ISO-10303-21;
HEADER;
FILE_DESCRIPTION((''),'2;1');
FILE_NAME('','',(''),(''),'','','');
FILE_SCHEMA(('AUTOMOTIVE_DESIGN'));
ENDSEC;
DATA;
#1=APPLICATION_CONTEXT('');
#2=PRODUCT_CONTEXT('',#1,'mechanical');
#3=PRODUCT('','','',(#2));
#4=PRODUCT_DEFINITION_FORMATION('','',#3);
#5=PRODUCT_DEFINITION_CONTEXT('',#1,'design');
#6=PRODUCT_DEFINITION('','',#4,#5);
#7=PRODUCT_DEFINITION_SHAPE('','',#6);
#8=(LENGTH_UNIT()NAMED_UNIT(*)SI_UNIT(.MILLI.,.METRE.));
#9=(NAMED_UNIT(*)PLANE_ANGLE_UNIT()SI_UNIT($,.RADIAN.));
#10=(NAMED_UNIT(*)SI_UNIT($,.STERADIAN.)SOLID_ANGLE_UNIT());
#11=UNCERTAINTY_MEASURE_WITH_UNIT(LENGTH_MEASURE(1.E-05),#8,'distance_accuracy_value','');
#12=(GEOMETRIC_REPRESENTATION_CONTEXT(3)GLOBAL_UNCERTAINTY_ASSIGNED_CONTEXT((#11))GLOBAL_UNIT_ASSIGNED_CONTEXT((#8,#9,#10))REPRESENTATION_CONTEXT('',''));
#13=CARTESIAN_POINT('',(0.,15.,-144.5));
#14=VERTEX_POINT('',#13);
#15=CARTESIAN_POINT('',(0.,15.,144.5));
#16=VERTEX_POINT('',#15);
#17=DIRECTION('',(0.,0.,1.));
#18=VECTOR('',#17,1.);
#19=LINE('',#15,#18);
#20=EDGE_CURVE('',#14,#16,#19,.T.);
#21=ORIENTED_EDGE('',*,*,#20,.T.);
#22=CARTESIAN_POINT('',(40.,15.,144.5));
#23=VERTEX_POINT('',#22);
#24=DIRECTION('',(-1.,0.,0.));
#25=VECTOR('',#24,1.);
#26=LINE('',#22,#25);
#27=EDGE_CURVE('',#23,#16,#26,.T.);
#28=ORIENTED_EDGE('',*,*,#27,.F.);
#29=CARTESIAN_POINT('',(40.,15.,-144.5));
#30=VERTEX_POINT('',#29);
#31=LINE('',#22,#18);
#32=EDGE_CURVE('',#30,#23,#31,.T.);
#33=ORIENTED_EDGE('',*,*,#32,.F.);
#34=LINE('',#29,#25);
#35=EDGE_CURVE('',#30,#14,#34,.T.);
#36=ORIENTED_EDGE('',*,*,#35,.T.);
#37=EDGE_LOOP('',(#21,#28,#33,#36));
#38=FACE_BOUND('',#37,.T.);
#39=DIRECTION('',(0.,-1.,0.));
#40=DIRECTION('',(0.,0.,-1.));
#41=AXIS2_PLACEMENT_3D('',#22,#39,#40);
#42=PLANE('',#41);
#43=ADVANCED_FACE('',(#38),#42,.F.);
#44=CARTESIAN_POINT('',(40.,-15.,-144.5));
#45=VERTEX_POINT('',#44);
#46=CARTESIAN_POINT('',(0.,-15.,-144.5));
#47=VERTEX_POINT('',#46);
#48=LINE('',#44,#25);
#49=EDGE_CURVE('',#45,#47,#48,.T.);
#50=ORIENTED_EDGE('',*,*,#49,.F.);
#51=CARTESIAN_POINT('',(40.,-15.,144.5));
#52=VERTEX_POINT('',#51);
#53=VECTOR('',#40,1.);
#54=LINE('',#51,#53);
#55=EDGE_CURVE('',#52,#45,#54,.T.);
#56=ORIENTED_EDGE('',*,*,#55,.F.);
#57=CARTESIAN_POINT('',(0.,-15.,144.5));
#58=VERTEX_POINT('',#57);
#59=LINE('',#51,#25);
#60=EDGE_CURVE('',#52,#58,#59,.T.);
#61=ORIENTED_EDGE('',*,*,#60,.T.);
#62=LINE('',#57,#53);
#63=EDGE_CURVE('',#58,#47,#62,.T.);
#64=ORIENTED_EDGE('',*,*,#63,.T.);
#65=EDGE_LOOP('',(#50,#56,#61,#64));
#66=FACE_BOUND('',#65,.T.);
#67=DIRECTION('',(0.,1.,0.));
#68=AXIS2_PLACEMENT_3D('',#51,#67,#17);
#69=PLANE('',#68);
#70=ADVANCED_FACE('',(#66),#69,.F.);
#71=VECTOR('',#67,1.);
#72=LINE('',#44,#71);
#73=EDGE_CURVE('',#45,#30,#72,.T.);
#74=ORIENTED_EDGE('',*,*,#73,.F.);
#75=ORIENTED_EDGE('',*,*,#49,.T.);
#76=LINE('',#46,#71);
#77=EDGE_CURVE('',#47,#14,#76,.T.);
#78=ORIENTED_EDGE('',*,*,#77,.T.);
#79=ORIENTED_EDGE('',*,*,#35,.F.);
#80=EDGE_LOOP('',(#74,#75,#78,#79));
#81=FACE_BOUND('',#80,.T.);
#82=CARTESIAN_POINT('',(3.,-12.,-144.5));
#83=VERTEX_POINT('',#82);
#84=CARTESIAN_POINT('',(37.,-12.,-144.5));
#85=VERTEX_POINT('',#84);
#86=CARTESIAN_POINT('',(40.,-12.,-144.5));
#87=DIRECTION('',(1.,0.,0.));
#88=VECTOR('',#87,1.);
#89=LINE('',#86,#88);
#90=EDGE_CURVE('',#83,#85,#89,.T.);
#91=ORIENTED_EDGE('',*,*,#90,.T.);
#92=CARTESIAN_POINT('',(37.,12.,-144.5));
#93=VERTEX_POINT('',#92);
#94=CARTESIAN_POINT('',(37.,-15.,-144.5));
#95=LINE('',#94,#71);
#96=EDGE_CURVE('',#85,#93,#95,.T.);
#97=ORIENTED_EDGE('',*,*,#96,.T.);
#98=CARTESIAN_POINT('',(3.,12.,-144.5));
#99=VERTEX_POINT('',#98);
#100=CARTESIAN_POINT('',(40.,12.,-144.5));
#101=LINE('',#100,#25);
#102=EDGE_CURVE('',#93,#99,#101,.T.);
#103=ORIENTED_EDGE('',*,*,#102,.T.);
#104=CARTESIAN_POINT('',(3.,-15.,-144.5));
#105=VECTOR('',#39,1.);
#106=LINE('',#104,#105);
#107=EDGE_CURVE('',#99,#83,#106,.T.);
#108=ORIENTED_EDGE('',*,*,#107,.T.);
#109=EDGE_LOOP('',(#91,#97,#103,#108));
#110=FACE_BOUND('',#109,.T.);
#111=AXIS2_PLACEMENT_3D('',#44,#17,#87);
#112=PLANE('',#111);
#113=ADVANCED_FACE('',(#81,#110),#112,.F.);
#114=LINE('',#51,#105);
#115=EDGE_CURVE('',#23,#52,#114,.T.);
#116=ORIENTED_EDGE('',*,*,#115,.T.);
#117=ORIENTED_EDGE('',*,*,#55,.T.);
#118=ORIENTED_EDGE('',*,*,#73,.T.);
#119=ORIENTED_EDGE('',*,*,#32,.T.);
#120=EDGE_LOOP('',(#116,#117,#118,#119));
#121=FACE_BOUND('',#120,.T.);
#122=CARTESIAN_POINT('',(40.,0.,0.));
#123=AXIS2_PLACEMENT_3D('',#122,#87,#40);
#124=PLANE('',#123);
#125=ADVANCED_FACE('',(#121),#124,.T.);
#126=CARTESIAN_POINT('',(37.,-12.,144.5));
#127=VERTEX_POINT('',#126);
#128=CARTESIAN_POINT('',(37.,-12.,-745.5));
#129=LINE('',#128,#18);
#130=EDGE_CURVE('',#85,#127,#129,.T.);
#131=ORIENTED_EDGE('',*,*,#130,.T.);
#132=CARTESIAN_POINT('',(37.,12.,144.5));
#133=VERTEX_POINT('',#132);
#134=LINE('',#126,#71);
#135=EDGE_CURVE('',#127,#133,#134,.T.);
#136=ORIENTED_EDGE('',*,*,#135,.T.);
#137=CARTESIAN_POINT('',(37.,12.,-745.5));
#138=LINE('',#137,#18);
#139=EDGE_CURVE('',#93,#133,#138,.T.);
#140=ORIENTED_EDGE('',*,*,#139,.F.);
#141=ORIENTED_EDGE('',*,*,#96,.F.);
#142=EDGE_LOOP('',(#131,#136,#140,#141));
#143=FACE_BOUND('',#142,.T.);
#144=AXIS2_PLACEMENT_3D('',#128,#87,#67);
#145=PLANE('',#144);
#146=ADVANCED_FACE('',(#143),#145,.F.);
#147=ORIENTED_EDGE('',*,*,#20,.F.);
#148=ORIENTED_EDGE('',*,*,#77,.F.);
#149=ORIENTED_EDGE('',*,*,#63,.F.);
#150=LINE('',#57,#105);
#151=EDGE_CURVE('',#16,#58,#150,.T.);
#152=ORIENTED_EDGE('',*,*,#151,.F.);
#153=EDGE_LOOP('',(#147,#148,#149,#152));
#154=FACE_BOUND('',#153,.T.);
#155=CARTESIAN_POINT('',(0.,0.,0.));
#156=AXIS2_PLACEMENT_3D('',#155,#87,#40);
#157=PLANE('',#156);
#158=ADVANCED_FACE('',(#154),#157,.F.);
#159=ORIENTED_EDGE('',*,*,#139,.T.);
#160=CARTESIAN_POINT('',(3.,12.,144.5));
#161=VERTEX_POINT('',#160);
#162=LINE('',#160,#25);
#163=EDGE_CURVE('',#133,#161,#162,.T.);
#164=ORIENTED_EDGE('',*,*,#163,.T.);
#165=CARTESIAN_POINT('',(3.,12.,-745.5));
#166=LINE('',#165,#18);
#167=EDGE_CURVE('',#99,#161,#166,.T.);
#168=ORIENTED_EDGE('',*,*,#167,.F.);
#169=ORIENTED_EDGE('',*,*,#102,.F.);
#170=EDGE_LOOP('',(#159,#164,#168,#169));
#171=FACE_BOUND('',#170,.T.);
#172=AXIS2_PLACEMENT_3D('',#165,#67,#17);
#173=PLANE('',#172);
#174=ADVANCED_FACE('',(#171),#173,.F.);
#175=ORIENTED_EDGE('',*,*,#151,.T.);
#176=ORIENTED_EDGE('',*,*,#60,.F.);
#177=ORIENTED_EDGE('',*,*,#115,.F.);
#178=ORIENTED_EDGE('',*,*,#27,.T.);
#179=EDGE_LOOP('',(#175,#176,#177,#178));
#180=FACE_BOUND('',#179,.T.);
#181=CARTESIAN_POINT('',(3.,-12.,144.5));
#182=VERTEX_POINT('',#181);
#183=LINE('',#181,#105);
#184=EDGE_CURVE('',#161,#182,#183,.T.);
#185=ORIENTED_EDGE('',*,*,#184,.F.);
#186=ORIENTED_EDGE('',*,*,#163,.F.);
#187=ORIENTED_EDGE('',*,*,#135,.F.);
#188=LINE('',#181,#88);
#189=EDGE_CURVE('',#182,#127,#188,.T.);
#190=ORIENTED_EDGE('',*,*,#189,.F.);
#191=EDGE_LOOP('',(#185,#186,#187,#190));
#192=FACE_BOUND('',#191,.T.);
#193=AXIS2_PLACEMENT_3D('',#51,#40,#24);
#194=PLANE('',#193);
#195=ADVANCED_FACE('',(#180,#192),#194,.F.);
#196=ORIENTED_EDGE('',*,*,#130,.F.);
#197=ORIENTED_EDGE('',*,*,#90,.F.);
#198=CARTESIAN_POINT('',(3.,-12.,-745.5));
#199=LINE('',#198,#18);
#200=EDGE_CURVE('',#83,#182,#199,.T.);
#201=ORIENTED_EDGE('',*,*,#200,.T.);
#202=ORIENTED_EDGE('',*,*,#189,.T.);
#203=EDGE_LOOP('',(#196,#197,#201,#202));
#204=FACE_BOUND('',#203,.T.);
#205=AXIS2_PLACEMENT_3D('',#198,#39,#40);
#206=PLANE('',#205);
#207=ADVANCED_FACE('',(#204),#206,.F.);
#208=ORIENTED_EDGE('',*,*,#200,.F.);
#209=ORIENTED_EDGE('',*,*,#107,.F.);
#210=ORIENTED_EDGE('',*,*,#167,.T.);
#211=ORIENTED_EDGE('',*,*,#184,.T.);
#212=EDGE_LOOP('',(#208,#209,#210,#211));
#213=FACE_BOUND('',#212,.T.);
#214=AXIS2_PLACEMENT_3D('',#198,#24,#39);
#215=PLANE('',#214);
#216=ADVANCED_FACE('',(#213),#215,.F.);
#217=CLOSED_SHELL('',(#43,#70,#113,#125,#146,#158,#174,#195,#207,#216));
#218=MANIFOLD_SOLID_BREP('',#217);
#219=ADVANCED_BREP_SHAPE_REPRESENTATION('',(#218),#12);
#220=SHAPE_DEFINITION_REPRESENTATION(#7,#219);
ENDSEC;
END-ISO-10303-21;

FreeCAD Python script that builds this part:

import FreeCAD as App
import Part
import Sketcher
Q = App.Units.Quantity

doc = App.newDocument("Part")
params = doc.addObject("Spreadsheet::Sheet", "Params")
for row, (alias, value) in enumerate([
    ("sketch1_width", "30 mm"),
    ("sketch1_height", "289 mm"),
    ("pad1_length", "40 mm"),
    ("sketch2_width", "34 mm"),
    ("sketch2_height", "24 mm"),
    ("pocket1_length", "890 mm"),
], start=1):
    params.set(f"A{row}", alias)
    params.set(f"B{row}", "=" + value)
    params.setAlias(f"B{row}", alias)

body = doc.addObject("PartDesign::Body", "Body")

sketch1 = doc.addObject("Sketcher::SketchObject", "Sketch")
body.addObject(sketch1)
sketch1.AttachmentSupport = (doc.YZ_Plane, [""])
sketch1.MapMode = "FlatFace"
sketch1.addGeometry(Part.LineSegment(App.Vector(15, 144, 0), App.Vector(-15, 144, 0)), False)
sketch1.addGeometry(Part.LineSegment(App.Vector(-15, 144, 0), App.Vector(-15, -144, 0)), False)
sketch1.addGeometry(Part.LineSegment(App.Vector(-15, -144, 0), App.Vector(15, -144, 0)), False)
sketch1.addGeometry(Part.LineSegment(App.Vector(15, -144, 0), App.Vector(15, 144, 0)), False)
sketch1.addConstraint(Sketcher.Constraint("Coincident", 0, 2, 1, 1))
sketch1.addConstraint(Sketcher.Constraint("Coincident", 1, 2, 2, 1))
sketch1.addConstraint(Sketcher.Constraint("Coincident", 2, 2, 3, 1))
sketch1.addConstraint(Sketcher.Constraint("Coincident", 3, 2, 0, 1))
sketch1.addConstraint(Sketcher.Constraint("Horizontal", 0))
sketch1.addConstraint(Sketcher.Constraint("Vertical", 1))
sketch1.addConstraint(Sketcher.Constraint("Horizontal", 2))
sketch1.addConstraint(Sketcher.Constraint("Vertical", 3))
sketch1.addConstraint(Sketcher.Constraint("Symmetric", 0, 2, 2, 2, -1, 1))
sketch1.addConstraint(Sketcher.Constraint("DistanceX", 0, 2, 0, 1, Q("30 mm")))
sketch1.addConstraint(Sketcher.Constraint("DistanceY", 1, 2, 1, 1, Q("289 mm")))
sketch1.setExpression("Constraints[9]", "Params.sketch1_width")
sketch1.setExpression("Constraints[10]", "Params.sketch1_height")
pad1 = doc.addObject("PartDesign::Pad", "Pad")
body.addObject(pad1)
pad1.Profile = sketch1
pad1.setExpression("Length", "Params.pad1_length")

sketch2 = doc.addObject("Sketcher::SketchObject", "Sketch001")
body.addObject(sketch2)
sketch2.AttachmentSupport = (doc.XY_Plane, [""])
sketch2.MapMode = "FlatFace"
sketch2.AttachmentOffset = App.Placement(App.Vector(0, 0, 144.5), App.Rotation())
sketch2.addGeometry(Part.LineSegment(App.Vector(3, 12, 0), App.Vector(3, -12, 0)), False)
sketch2.addGeometry(Part.LineSegment(App.Vector(3, -12, 0), App.Vector(37, -12, 0)), False)
sketch2.addGeometry(Part.LineSegment(App.Vector(37, -12, 0), App.Vector(37, 12, 0)), False)
sketch2.addGeometry(Part.LineSegment(App.Vector(37, 12, 0), App.Vector(3, 12, 0)), False)
sketch2.addConstraint(Sketcher.Constraint("Coincident", 0, 2, 1, 1))
sketch2.addConstraint(Sketcher.Constraint("Coincident", 1, 2, 2, 1))
sketch2.addConstraint(Sketcher.Constraint("Coincident", 2, 2, 3, 1))
sketch2.addConstraint(Sketcher.Constraint("Coincident", 3, 2, 0, 1))
sketch2.addConstraint(Sketcher.Constraint("Vertical", 0))
sketch2.addConstraint(Sketcher.Constraint("Horizontal", 1))
sketch2.addConstraint(Sketcher.Constraint("Vertical", 2))
sketch2.addConstraint(Sketcher.Constraint("Horizontal", 3))
sketch2.addConstraint(Sketcher.Constraint("DistanceX", 1, 1, 1, 2, Q("34 mm")))
sketch2.addConstraint(Sketcher.Constraint("DistanceY", 0, 2, 0, 1, Q("24 mm")))
sketch2.addConstraint(Sketcher.Constraint("DistanceX", -1, 1, 0, 2, Q("3 mm")))
sketch2.addConstraint(Sketcher.Constraint("DistanceY", 0, 2, -1, 1, Q("12 mm")))
sketch2.setExpression("Constraints[8]", "Params.sketch2_width")
sketch2.setExpression("Constraints[9]", "Params.sketch2_height")
pocket1 = doc.addObject("PartDesign::Pocket", "Pocket")
body.addObject(pocket1)
pocket1.Profile = sketch2
pocket1.setExpression("Length", "Params.pocket1_length")

doc.recompute()
